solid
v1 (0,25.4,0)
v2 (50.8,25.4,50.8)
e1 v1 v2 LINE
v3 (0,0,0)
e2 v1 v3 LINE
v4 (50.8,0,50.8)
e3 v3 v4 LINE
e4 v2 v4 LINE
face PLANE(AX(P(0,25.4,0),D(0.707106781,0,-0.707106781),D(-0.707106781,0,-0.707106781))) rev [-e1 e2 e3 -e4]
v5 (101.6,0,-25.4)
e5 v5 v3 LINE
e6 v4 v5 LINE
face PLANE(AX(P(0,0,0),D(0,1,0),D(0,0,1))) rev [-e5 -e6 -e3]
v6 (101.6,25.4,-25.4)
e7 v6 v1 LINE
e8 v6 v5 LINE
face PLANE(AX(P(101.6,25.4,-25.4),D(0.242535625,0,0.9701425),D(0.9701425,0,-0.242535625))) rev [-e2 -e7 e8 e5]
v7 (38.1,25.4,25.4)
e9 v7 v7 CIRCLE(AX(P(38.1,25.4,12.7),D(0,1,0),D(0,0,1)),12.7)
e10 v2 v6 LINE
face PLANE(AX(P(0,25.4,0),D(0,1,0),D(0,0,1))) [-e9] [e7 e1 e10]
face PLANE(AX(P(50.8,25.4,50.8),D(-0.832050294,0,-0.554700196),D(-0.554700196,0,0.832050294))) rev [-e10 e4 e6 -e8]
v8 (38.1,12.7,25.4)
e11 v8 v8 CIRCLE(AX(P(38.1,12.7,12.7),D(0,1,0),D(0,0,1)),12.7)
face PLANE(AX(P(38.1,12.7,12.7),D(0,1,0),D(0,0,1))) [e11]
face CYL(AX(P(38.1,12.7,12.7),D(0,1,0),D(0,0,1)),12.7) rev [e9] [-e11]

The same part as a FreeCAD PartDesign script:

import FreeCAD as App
import Part
import Sketcher

V = App.Vector
Q = App.Units.Quantity


def add_polygon(sketch, points):
    """Adds a closed chain of lines whose ends are joined by coincident constraints."""
    first, n = sketch.GeometryCount, len(points)
    for a, b in zip(points, points[1:] + points[:1]):
        sketch.addGeometry(Part.LineSegment(App.Vector(*a, 0), App.Vector(*b, 0)), False)
    for i in range(n):
        sketch.addConstraint(Sketcher.Constraint("Coincident", first + i, 2, first + (i + 1) % n, 1))

doc = App.newDocument("Part")
body = doc.addObject("PartDesign::Body", "Body")

# Sketch on XZ plane
sketch1 = body.newObject("Sketcher::SketchObject", "Sketch")
sketch1.AttachmentSupport = (doc.getObject("XZ_Plane"), [""])
sketch1.MapMode = "FlatFace"
add_polygon(sketch1, [(0, 0), (51, 51), (102, -25)])  # lines 0-2
sketch1.addConstraint(Sketcher.Constraint("Coincident", 2, 2, -1, 1))
sketch1.addConstraint(Sketcher.Constraint("DistanceX", -1, 1, 0, 2, Q("2 in")))
sketch1.addConstraint(Sketcher.Constraint("DistanceY", -1, 1, 0, 2, Q("2 in")))
sketch1.addConstraint(Sketcher.Constraint("DistanceX", -1, 1, 1, 2, Q("4 in")))
sketch1.addConstraint(Sketcher.Constraint("DistanceY", 1, 2, -1, 1, Q("1 in")))
pad1 = body.newObject("PartDesign::Pad", "Pad")
pad1.Profile = sketch1
pad1.Length = Q("1 in")
pad1.Reversed = True

# Sketch on XZ plane
sketch2 = body.newObject("Sketcher::SketchObject", "Sketch001")
sketch2.AttachmentSupport = (doc.getObject("XZ_Plane"), [""])
sketch2.MapMode = "FlatFace"
sketch2.AttachmentOffset = App.Placement(V(0, 0, -1 * 25.4), App.Rotation())
sketch2.addGeometry(Part.Circle(V(38, 13, 0), V(0, 0, 1), 13), False)
sketch2.addConstraint(Sketcher.Constraint("Diameter", 0, Q("1 in")))
sketch2.addConstraint(Sketcher.Constraint("DistanceX", -1, 1, 0, 3, Q("1.5 in")))
sketch2.addConstraint(Sketcher.Constraint("DistanceY", -1, 1, 0, 3, Q("0.5 in")))
pocket1 = body.newObject("PartDesign::Pocket", "Pocket")
pocket1.Profile = sketch2
pocket1.Length = Q("0.5 in")
pocket1.Reversed = True

doc.recompute()
